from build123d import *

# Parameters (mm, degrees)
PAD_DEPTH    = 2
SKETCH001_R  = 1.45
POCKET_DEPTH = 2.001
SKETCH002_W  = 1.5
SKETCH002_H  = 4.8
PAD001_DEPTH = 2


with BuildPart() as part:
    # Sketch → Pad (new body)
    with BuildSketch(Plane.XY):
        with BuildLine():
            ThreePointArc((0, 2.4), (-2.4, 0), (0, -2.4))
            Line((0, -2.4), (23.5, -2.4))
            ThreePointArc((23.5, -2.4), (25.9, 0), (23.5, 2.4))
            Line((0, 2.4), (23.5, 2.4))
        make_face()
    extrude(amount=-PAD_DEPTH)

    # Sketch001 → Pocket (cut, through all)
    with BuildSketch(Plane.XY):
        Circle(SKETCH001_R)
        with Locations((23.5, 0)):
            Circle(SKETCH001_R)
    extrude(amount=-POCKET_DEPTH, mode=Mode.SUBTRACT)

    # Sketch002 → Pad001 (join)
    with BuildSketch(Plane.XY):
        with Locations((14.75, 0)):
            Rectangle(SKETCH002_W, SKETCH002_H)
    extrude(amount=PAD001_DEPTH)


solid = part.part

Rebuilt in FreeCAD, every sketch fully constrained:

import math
import FreeCAD as App
import Part
import Sketcher
from FreeCAD import Vector


def add_polygon(sketch, points):
    """Adds a closed chain of lines whose ends are joined by coincident constraints."""
    first, n = sketch.GeometryCount, len(points)
    for a, b in zip(points, points[1:] + points[:1]):
        sketch.addGeometry(Part.LineSegment(App.Vector(*a, 0), App.Vector(*b, 0)), False)
    for i in range(n):
        sketch.addConstraint(Sketcher.Constraint("Coincident", first + i, 2, first + (i + 1) % n, 1))

doc = App.newDocument("Part")
body = doc.addObject("PartDesign::Body", "Body")

sketch1 = body.newObject("Sketcher::SketchObject", "Sketch")
sketch1.AttachmentSupport = (doc.getObject("XY_Plane"), [""])
sketch1.MapMode = "FlatFace"
sketch1.addGeometry([
    Part.ArcOfCircle(Part.Circle(Vector(0, 0, 0), Vector(0, 0, 1), 2.4), math.radians(90), math.radians(270)),
    Part.LineSegment(Vector(0, -2.4, 0), Vector(23.5, -2.4, 0)),
    Part.ArcOfCircle(Part.Circle(Vector(23.5, 0, 0), Vector(0, 0, 1), 2.4), math.radians(-90), math.radians(90)),
    Part.LineSegment(Vector(23.5, 2.4, 0), Vector(0, 2.4, 0)),
], False)
sketch1.addConstraint([
    Sketcher.Constraint("Tangent", 0, 2, 1, 1),
    Sketcher.Constraint("Tangent", 1, 2, 2, 1),
    Sketcher.Constraint("Tangent", 2, 2, 3, 1),
    Sketcher.Constraint("Tangent", 3, 2, 0, 1),
    Sketcher.Constraint("Horizontal", 1),
    Sketcher.Constraint("Horizontal", 3),
    Sketcher.Constraint("Coincident", 0, 3, -1, 1),
    Sketcher.Constraint("Radius", 0, 2.4),
    Sketcher.Constraint("DistanceX", 1, 1, 1, 2, 23.5),
])
pad1 = body.newObject("PartDesign::Pad", "Pad")
pad1.Profile = sketch1
pad1.Length = 2
pad1.Reversed = True

sketch2 = body.newObject("Sketcher::SketchObject", "Sketch001")
sketch2.AttachmentSupport = (doc.getObject("XY_Plane"), [""])
sketch2.MapMode = "FlatFace"
sketch2.addGeometry([
    Part.Circle(Vector(0, 0, 0), Vector(0, 0, 1), 1.4),
    Part.Circle(Vector(23.5, 0, 0), Vector(0, 0, 1), 1.4),
], False)
sketch2.addConstraint([
    Sketcher.Constraint("Coincident", 0, 3, -1, 1),
    Sketcher.Constraint("Equal", 0, 1),
    Sketcher.Constraint("PointOnObject", 1, 3, -1),
    Sketcher.Constraint("Diameter", 0, 2.9),
    Sketcher.Constraint("DistanceX", -1, 1, 1, 3, 23.5),
])
pocket1 = body.newObject("PartDesign::Pocket", "Pocket")
pocket1.Profile = sketch2
pocket1.Type = "ThroughAll"

sketch3 = body.newObject("Sketcher::SketchObject", "Sketch002")
sketch3.AttachmentSupport = (doc.getObject("XY_Plane"), [""])
sketch3.MapMode = "FlatFace"
add_polygon(sketch3, [(14, 2.4), (14, -2.4), (15.5, -2.4), (15.5, 2.4)])
sketch3.addConstraint([
    Sketcher.Constraint("Vertical", 0),
    Sketcher.Constraint("Horizontal", 1),
    Sketcher.Constraint("Vertical", 2),
    Sketcher.Constraint("Horizontal", 3),
    Sketcher.Constraint("DistanceX", 1, 1, 1, 2, 1.5),
    Sketcher.Constraint("DistanceY", 0, 2, 0, 1, 4.8),
    Sketcher.Constraint("DistanceX", -1, 1, 0, 2, 14.0),
    Sketcher.Constraint("DistanceY", 0, 2, -1, 1, 2.4),
])
pad2 = body.newObject("PartDesign::Pad", "Pad001")
pad2.Profile = sketch3
pad2.Length = 2

doc.recompute()
